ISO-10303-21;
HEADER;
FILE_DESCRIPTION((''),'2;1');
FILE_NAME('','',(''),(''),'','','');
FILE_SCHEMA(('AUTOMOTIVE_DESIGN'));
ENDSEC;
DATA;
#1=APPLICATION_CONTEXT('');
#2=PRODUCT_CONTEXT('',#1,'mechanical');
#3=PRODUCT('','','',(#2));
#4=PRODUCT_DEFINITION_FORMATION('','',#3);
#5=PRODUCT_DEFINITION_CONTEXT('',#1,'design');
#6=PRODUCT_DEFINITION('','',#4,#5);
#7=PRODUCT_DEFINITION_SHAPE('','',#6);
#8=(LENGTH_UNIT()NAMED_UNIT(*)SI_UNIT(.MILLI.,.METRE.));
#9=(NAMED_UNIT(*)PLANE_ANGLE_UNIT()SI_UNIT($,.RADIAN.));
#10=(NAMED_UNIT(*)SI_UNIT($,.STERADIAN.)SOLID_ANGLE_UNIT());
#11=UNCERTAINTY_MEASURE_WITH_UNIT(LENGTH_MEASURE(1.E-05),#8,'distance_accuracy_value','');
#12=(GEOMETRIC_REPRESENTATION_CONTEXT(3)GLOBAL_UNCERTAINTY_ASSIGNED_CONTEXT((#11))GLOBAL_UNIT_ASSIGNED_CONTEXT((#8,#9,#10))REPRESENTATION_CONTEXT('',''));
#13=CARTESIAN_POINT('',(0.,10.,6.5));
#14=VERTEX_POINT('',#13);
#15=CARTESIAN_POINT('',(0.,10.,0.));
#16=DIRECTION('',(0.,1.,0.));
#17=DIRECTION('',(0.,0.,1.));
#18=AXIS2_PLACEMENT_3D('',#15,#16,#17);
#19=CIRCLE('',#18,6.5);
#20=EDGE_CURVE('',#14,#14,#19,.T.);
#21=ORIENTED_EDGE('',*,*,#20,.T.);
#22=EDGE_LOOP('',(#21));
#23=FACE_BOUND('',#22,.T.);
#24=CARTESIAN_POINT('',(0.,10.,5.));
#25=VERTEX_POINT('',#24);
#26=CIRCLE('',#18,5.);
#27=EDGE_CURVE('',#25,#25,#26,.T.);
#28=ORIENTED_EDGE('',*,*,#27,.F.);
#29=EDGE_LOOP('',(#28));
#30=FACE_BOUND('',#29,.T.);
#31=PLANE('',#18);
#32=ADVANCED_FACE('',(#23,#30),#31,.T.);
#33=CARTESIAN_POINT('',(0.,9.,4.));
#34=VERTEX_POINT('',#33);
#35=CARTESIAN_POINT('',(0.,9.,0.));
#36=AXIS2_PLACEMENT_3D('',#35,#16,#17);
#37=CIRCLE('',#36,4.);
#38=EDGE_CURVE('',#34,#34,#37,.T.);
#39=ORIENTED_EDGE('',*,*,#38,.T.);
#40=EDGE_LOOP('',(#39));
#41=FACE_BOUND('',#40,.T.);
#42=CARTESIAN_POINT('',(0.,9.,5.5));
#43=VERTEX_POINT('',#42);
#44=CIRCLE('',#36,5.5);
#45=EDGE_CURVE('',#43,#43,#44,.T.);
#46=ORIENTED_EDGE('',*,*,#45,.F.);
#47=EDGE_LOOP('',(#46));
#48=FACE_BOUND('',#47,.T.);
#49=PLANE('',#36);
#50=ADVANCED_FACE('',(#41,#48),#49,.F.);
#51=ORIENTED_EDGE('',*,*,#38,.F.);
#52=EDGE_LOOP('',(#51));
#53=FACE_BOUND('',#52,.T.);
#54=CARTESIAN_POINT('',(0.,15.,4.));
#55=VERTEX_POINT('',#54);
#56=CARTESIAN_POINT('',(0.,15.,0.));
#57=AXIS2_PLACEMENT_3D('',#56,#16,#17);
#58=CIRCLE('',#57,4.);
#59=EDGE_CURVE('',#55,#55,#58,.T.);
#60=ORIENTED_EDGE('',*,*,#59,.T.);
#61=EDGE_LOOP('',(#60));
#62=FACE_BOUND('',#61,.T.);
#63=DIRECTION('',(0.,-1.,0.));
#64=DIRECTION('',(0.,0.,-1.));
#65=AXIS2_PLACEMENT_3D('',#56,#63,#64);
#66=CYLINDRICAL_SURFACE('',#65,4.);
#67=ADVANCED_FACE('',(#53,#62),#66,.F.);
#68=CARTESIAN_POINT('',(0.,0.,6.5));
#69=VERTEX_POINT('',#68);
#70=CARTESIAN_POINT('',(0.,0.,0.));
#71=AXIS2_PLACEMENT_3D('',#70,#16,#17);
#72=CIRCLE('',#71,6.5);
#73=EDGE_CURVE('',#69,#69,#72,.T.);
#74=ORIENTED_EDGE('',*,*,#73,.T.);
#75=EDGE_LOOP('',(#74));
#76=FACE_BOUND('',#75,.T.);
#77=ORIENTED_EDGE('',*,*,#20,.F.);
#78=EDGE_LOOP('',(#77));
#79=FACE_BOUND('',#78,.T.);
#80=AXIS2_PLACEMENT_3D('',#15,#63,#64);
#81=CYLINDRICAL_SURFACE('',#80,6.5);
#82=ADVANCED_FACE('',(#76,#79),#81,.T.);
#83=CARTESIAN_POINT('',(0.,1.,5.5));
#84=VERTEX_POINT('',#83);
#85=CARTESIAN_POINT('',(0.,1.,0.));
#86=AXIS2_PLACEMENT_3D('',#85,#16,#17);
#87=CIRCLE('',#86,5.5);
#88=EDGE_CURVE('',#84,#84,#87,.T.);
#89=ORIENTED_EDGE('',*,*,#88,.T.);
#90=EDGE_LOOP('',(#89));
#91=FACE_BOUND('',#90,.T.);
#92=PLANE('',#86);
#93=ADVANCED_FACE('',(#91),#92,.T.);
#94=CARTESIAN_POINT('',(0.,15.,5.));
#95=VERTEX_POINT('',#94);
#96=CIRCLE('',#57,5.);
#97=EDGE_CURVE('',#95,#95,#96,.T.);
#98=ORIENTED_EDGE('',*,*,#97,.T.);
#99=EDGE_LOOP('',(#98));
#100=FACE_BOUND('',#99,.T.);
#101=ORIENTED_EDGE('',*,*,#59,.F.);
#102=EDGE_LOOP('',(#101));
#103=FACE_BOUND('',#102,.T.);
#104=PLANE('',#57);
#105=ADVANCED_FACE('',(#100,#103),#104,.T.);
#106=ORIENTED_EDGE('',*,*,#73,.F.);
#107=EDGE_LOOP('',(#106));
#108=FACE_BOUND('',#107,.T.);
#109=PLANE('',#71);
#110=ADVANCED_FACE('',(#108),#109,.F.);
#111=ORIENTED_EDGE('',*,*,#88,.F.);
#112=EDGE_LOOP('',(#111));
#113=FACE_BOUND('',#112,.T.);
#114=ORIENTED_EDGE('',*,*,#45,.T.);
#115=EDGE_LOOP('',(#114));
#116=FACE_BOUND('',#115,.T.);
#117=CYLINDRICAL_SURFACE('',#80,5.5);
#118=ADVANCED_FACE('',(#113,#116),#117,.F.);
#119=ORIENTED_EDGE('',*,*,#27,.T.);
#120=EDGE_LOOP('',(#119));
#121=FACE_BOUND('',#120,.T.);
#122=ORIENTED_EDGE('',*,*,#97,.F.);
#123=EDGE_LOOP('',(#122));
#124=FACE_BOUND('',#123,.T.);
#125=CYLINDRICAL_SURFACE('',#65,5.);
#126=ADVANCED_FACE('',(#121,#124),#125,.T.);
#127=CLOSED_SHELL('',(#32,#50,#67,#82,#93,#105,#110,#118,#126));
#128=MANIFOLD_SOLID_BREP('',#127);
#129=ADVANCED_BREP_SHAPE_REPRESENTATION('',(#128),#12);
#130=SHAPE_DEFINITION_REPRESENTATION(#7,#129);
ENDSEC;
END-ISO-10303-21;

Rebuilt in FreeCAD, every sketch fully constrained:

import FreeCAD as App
import Part
import Sketcher
from FreeCAD import Vector


def faces_at(feature, points):
    """Names of the faces that lie closest to the given points."""
    faces = feature.Shape.Faces
    near = lambda p: min(range(len(faces)), key=lambda i: faces[i].distToShape(Part.Vertex(*p))[0])
    return sorted({f"Face{near(p) + 1}" for p in points})

doc = App.newDocument("Part")
body = doc.addObject("PartDesign::Body", "Body")

# Sketch on XZ plane
sketch1 = body.newObject("Sketcher::SketchObject", "Sketch")
sketch1.AttachmentSupport = (doc.getObject("XZ_Plane"), [""])
sketch1.MapMode = "FlatFace"
sketch1.addGeometry(Part.Circle(Vector(0, 0, 0), Vector(0, 0, 1), 6), False)
sketch1.addConstraint([
    Sketcher.Constraint("Coincident", 0, 3, -1, 1),
    Sketcher.Constraint("Diameter", 0, 13.0),
])
pad1 = body.newObject("PartDesign::Pad", "Pad")
pad1.Profile = sketch1
pad1.Length = 10
pad1.Reversed = True

# Sketch on XZ plane
sketch2 = body.newObject("Sketcher::SketchObject", "Sketch001")
sketch2.AttachmentSupport = (doc.getObject("XZ_Plane"), [""])
sketch2.MapMode = "FlatFace"
sketch2.AttachmentOffset = App.Placement(Vector(0, 0, -10), App.Rotation())
sketch2.addGeometry(Part.Circle(Vector(0, 0, 0), Vector(0, 0, 1), 5), False)
sketch2.addConstraint([
    Sketcher.Constraint("Coincident", 0, 3, -1, 1),
    Sketcher.Constraint("Diameter", 0, 10.0),
])
pad2 = body.newObject("PartDesign::Pad", "Pad001")
pad2.Profile = sketch2
pad2.Length = 5
pad2.Reversed = True
doc.recompute()

thickness = body.newObject("PartDesign::Thickness", "Thickness")
thickness.Base = (pad2, faces_at(pad2, [(0, 15, 0)]))
thickness.Value = 1
thickness.Reversed = True
thickness.Join = "Intersection"

doc.recompute()
